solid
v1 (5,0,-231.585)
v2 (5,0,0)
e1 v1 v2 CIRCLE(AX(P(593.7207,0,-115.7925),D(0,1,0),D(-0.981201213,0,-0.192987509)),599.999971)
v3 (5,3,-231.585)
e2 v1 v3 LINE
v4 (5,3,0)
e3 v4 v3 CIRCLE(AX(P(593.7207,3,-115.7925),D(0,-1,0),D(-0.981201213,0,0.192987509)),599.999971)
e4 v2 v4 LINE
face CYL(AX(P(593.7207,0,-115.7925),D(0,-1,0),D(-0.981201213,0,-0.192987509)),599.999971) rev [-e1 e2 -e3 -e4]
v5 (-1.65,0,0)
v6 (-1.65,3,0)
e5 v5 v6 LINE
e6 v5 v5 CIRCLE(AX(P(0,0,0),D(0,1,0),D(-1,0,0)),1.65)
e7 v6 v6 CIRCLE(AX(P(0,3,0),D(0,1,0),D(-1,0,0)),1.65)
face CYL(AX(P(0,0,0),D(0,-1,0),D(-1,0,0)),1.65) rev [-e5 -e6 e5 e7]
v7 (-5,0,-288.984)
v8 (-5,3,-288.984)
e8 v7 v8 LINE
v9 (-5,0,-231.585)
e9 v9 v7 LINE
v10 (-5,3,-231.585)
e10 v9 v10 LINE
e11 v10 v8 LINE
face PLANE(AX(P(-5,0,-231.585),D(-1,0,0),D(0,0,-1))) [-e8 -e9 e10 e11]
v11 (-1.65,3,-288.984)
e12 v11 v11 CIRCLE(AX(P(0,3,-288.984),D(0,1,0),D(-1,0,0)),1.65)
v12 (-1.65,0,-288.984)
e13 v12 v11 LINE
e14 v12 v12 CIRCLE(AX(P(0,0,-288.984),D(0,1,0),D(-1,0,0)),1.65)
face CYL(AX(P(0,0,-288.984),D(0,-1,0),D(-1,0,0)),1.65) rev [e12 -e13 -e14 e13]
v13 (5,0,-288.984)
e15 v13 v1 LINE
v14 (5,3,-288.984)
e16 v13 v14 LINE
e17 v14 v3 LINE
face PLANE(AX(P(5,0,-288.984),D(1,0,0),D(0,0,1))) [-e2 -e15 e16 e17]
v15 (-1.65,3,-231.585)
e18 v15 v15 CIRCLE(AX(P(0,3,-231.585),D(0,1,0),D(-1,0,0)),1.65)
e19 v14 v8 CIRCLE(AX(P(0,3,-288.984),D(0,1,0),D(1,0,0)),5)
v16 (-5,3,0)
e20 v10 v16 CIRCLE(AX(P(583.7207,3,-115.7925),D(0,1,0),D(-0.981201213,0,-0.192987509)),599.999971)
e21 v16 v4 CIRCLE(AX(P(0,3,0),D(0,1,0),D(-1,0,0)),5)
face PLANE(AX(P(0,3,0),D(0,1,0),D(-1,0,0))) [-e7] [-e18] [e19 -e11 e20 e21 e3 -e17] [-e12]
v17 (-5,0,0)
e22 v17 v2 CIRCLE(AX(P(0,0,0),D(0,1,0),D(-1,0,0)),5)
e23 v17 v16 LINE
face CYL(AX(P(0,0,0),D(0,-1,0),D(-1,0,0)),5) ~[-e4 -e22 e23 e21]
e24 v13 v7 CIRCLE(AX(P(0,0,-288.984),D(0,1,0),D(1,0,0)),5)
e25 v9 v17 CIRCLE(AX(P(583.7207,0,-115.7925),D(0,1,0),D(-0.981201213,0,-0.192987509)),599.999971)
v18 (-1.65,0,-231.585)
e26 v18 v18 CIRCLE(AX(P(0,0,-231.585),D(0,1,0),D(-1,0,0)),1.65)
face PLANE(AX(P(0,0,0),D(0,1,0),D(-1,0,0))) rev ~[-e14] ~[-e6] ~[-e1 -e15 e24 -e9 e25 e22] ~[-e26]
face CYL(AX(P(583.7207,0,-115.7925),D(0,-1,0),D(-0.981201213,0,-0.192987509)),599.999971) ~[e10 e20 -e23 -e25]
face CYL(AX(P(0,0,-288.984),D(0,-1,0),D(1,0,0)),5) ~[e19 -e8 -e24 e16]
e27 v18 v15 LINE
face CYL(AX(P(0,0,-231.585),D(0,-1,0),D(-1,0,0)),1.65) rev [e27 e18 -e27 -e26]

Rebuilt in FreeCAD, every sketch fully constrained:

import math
import FreeCAD as App
import Part
import Sketcher
from FreeCAD import Vector
Q = App.Units.Quantity

doc = App.newDocument("Part")
params = doc.addObject("Spreadsheet::Sheet", "Params")
for row, (alias, value) in enumerate([
    ("sketch1_radius", "600 mm"),
    ("sketch1_radius2", "5 mm"),
    ("sketch1_diameter", "3.3 mm"),
    ("pad1_length", "3 mm"),
], start=1):
    params.set(f"A{row}", alias)
    params.set(f"B{row}", "=" + value)
    params.setAlias(f"B{row}", alias)

body = doc.addObject("PartDesign::Body", "Body")

sketch1 = body.newObject("Sketcher::SketchObject", "Sketch")
sketch1.AttachmentSupport = (doc.getObject("XZ_Plane"), [""])
sketch1.MapMode = "FlatFace"
sketch1.addGeometry(Part.LineSegment(Vector(-5, -289, 0), Vector(-5, -231.6, 0)), False)
sketch1.addGeometry(Part.ArcOfCircle(Part.Circle(Vector(583.7, -115.8, 0), Vector(0, 0, 1), 600), math.radians(169), math.radians(191)), False)
sketch1.addGeometry(Part.ArcOfCircle(Part.Circle(Vector(0, 0, 0), Vector(0, 0, 1), 5), math.radians(0), math.radians(180)), False)
sketch1.addGeometry(Part.ArcOfCircle(Part.Circle(Vector(593.7, -115.8, 0), Vector(0, 0, 1), 600), math.radians(169), math.radians(191)), False)
sketch1.addGeometry(Part.LineSegment(Vector(5, -231.6, 0), Vector(5, -289, 0)), False)
sketch1.addGeometry(Part.ArcOfCircle(Part.Circle(Vector(0, -289, 0), Vector(0, 0, 1), 5), math.radians(180), math.radians(360)), False)
sketch1.addGeometry(Part.Circle(Vector(0, -289, 0), Vector(0, 0, 1), 1.6), False)
sketch1.addGeometry(Part.Circle(Vector(0, -231.6, 0), Vector(0, 0, 1), 1.6), False)
sketch1.addGeometry(Part.Circle(Vector(0, 0, 0), Vector(0, 0, 1), 1.6), False)
sketch1.addConstraint(Sketcher.Constraint("Coincident", 0, 2, 1, 2))
sketch1.addConstraint(Sketcher.Constraint("Coincident", 1, 1, 2, 2))
sketch1.addConstraint(Sketcher.Constraint("Coincident", 2, 1, 3, 1))
sketch1.addConstraint(Sketcher.Constraint("Coincident", 3, 2, 4, 1))
sketch1.addConstraint(Sketcher.Constraint("Tangent", 4, 2, 5, 2))
sketch1.addConstraint(Sketcher.Constraint("Tangent", 5, 1, 0, 1))
sketch1.addConstraint(Sketcher.Constraint("Vertical", 0))
sketch1.addConstraint(Sketcher.Constraint("Vertical", 4))
sketch1.addConstraint(Sketcher.Constraint("Coincident", 2, 3, -1, 1))
sketch1.addConstraint(Sketcher.Constraint("Coincident", 8, 3, -1, 1))
sketch1.addConstraint(Sketcher.Constraint("Coincident", 6, 3, 5, 3))
sketch1.addConstraint(Sketcher.Constraint("Equal", 1, 3))
sketch1.addConstraint(Sketcher.Constraint("Equal", 2, 5))
sketch1.addConstraint(Sketcher.Constraint("Equal", 6, 7))
sketch1.addConstraint(Sketcher.Constraint("Equal", 7, 8))
sketch1.addConstraint(Sketcher.Constraint("Symmetric", 0, 2, 3, 2, -2))
sketch1.addConstraint(Sketcher.Constraint("PointOnObject", 7, 3, -2))
sketch1.addConstraint(Sketcher.Constraint("PointOnObject", 1, 1, -1))
sketch1.addConstraint(Sketcher.Constraint("PointOnObject", 2, 1, -1))
sketch1.addConstraint(Sketcher.Constraint("Horizontal", 7, 3, 0, 2))
sketch1.addConstraint(Sketcher.Constraint("Radius", 1, Q("600 mm")))
sketch1.addConstraint(Sketcher.Constraint("Radius", 2, Q("5 mm")))
sketch1.addConstraint(Sketcher.Constraint("Diameter", 6, Q("3.3 mm")))
sketch1.addConstraint(Sketcher.Constraint("DistanceY", 5, 3, -1, 1, Q("288.984 mm")))
sketch1.addConstraint(Sketcher.Constraint("DistanceY", 7, 3, -1, 1, Q("231.585 mm")))
sketch1.setExpression("Constraints[20]", "Params.sketch1_radius")
sketch1.setExpression("Constraints[21]", "Params.sketch1_radius2")
sketch1.setExpression("Constraints[22]", "Params.sketch1_diameter")
pad1 = body.newObject("PartDesign::Pad", "Pad")
pad1.Profile = sketch1
pad1.setExpression("Length", "Params.pad1_length")
pad1.Reversed = True

doc.recompute()
